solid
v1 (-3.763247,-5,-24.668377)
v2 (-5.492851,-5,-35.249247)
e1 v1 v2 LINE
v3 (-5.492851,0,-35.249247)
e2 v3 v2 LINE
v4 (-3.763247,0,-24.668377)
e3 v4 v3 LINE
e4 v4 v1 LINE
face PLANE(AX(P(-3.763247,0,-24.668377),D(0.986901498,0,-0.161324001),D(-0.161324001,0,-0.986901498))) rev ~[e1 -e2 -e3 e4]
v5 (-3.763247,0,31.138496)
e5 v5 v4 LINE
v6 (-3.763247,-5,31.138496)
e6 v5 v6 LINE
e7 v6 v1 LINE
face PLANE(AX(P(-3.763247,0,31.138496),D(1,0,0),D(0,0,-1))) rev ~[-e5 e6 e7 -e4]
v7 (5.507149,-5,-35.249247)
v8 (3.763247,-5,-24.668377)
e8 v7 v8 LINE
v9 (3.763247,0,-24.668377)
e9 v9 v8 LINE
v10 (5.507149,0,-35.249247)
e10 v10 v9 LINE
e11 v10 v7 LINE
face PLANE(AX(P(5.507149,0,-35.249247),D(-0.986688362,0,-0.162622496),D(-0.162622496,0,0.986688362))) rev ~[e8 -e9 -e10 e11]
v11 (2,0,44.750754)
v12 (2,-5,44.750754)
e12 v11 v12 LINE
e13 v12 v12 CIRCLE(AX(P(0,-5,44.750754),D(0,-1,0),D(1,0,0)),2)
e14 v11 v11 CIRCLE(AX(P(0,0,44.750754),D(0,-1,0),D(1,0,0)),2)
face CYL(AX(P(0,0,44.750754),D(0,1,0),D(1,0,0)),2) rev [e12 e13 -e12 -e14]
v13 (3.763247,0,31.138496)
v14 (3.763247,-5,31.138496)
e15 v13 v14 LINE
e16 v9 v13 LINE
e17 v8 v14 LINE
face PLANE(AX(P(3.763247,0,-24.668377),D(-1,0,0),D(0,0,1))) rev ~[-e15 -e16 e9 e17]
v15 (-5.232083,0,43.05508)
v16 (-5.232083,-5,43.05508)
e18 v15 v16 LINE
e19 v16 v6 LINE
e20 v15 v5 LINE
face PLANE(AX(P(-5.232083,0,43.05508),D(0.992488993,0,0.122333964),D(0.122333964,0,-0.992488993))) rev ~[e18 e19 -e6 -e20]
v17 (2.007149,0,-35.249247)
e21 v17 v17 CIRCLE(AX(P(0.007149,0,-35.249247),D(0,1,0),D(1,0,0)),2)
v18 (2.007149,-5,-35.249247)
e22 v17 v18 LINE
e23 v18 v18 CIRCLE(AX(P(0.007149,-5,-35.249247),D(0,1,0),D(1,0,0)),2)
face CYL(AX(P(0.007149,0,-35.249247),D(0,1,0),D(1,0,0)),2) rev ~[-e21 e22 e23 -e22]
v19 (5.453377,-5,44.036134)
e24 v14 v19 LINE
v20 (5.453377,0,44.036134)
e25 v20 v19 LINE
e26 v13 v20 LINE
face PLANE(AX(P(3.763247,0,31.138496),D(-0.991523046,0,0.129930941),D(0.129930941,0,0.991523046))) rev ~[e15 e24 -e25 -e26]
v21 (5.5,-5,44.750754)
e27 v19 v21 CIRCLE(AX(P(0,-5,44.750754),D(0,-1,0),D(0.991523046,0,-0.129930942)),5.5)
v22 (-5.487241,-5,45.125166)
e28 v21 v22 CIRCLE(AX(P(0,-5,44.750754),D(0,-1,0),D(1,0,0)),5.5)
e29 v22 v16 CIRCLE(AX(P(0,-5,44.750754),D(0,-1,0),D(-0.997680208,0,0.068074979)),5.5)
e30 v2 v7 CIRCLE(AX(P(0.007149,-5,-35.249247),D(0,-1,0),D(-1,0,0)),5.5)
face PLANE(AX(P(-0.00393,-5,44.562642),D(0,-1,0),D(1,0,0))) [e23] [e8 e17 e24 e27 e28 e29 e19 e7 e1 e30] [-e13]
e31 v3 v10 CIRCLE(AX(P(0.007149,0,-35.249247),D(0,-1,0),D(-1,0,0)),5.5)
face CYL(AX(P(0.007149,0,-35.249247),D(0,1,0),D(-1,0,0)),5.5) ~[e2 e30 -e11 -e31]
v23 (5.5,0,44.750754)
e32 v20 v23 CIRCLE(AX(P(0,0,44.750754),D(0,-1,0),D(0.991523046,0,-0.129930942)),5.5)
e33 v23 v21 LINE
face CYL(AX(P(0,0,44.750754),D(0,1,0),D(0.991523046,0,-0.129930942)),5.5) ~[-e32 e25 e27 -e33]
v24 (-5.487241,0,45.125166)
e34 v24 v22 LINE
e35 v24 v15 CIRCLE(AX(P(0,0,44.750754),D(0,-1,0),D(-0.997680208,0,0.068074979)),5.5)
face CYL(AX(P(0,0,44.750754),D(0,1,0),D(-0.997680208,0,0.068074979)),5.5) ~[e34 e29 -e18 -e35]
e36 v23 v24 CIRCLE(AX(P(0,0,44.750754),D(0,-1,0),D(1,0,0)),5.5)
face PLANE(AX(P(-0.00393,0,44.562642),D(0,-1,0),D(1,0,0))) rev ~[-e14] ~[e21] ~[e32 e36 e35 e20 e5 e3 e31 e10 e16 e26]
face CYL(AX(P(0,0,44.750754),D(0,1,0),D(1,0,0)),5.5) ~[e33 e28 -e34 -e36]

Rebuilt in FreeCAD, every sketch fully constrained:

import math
import FreeCAD as App
import Part
import Sketcher
from FreeCAD import Vector

doc = App.newDocument("Part")
body = doc.addObject("PartDesign::Body", "Body")

# Sketch on XZ plane
sketch1 = body.newObject("Sketcher::SketchObject", "Sketch")
sketch1.AttachmentSupport = (doc.getObject("XZ_Plane"), [""])
sketch1.MapMode = "FlatFace"
sketch1.addGeometry(Part.ArcOfCircle(Part.Circle(Vector(0, 44.8, 0), Vector(0, 0, 1), 5.5), math.radians(-7.47), math.radians(0)), False)
sketch1.addGeometry(Part.ArcOfCircle(Part.Circle(Vector(0, 44.8, 0), Vector(0, 0, 1), 5.5), math.radians(0), math.radians(176)), False)
sketch1.addGeometry(Part.ArcOfCircle(Part.Circle(Vector(0, 44.8, 0), Vector(0, 0, 1), 5.5), math.radians(176), math.radians(198)), False)
sketch1.addGeometry(Part.LineSegment(Vector(-5.2, 43.1, 0), Vector(-3.8, 31.1, 0)), False)
sketch1.addGeometry(Part.LineSegment(Vector(-3.8, 31.1, 0), Vector(-3.8, -24.7, 0)), False)
sketch1.addGeometry(Part.LineSegment(Vector(-3.8, -24.7, 0), Vector(-5.5, -35.2, 0)), False)
sketch1.addGeometry(Part.ArcOfCircle(Part.Circle(Vector(0, -35.2, 0), Vector(0, 0, 1), 5.5), math.radians(180), math.radians(360)), False)
sketch1.addGeometry(Part.LineSegment(Vector(5.5, -35.2, 0), Vector(3.8, -24.7, 0)), False)
sketch1.addGeometry(Part.LineSegment(Vector(3.8, -24.7, 0), Vector(3.8, 31.1, 0)), False)
sketch1.addGeometry(Part.LineSegment(Vector(3.8, 31.1, 0), Vector(5.5, 44, 0)), False)
sketch1.addGeometry(Part.Circle(Vector(0, -35.2, 0), Vector(0, 0, 1), 2), False)
sketch1.addGeometry(Part.Circle(Vector(0, 44.8, 0), Vector(0, 0, 1), 2), False)
sketch1.addConstraint(Sketcher.Constraint("Tangent", 0, 2, 1, 1))
sketch1.addConstraint(Sketcher.Constraint("Tangent", 1, 2, 2, 1))
sketch1.addConstraint(Sketcher.Constraint("Coincident", 2, 2, 3, 1))
sketch1.addConstraint(Sketcher.Constraint("Coincident", 3, 2, 4, 1))
sketch1.addConstraint(Sketcher.Constraint("Coincident", 4, 2, 5, 1))
sketch1.addConstraint(Sketcher.Constraint("Coincident", 5, 2, 6, 1))
sketch1.addConstraint(Sketcher.Constraint("Coincident", 6, 2, 7, 1))
sketch1.addConstraint(Sketcher.Constraint("Coincident", 7, 2, 8, 1))
sketch1.addConstraint(Sketcher.Constraint("Coincident", 8, 2, 9, 1))
sketch1.addConstraint(Sketcher.Constraint("Tangent", 9, 2, 0, 1))
sketch1.addConstraint(Sketcher.Constraint("Vertical", 4))
sketch1.addConstraint(Sketcher.Constraint("Vertical", 8))
sketch1.addConstraint(Sketcher.Constraint("Coincident", 2, 3, 0, 3))
sketch1.addConstraint(Sketcher.Constraint("Coincident", 10, 3, 6, 3))
sketch1.addConstraint(Sketcher.Constraint("Coincident", 11, 3, 0, 3))
sketch1.addConstraint(Sketcher.Constraint("Equal", 2, 6))
sketch1.addConstraint(Sketcher.Constraint("Equal", 10, 11))
sketch1.addConstraint(Sketcher.Constraint("Symmetric", 4, 2, 7, 2, -2))
sketch1.addConstraint(Sketcher.Constraint("PointOnObject", 0, 3, -2))
sketch1.addConstraint(Sketcher.Constraint("Horizontal", 11, 3, 0, 2))
sketch1.addConstraint(Sketcher.Constraint("Horizontal", 10, 3, 5, 2))
sketch1.addConstraint(Sketcher.Constraint("Horizontal", 5, 2, 6, 2))
sketch1.addConstraint(Sketcher.Constraint("Horizontal", 3, 2, 8, 2))
sketch1.addConstraint(Sketcher.Constraint("Diameter", 10, 4.0))
sketch1.addConstraint(Sketcher.Constraint("Radius", 0, 5.5))
sketch1.addConstraint(Sketcher.Constraint("DistanceY", 6, 3, 0, 3, 80.0))
sketch1.addConstraint(Sketcher.Constraint("DistanceX", 7, 2, 6, 2, 1.743902))
sketch1.addConstraint(Sketcher.Constraint("Distance", 7, 10.723619))
sketch1.addConstraint(Sketcher.Constraint("DistanceY", 4, 2, 4, 1, 55.806873))
sketch1.addConstraint(Sketcher.Constraint("DistanceX", -1, 1, 6, 3, 0.007149))
sketch1.addConstraint(Sketcher.Constraint("DistanceX", 1, 2, -1, 1, 5.487241))
sketch1.addConstraint(Sketcher.Constraint("DistanceY", -1, 1, 2, 2, 43.05508))
sketch1.addConstraint(Sketcher.Constraint("DistanceX", 1, 2, 2, 2, 0.255158))
pad1 = body.newObject("PartDesign::Pad", "Pad")
pad1.Profile = sketch1
pad1.Length = 5

doc.recompute()
